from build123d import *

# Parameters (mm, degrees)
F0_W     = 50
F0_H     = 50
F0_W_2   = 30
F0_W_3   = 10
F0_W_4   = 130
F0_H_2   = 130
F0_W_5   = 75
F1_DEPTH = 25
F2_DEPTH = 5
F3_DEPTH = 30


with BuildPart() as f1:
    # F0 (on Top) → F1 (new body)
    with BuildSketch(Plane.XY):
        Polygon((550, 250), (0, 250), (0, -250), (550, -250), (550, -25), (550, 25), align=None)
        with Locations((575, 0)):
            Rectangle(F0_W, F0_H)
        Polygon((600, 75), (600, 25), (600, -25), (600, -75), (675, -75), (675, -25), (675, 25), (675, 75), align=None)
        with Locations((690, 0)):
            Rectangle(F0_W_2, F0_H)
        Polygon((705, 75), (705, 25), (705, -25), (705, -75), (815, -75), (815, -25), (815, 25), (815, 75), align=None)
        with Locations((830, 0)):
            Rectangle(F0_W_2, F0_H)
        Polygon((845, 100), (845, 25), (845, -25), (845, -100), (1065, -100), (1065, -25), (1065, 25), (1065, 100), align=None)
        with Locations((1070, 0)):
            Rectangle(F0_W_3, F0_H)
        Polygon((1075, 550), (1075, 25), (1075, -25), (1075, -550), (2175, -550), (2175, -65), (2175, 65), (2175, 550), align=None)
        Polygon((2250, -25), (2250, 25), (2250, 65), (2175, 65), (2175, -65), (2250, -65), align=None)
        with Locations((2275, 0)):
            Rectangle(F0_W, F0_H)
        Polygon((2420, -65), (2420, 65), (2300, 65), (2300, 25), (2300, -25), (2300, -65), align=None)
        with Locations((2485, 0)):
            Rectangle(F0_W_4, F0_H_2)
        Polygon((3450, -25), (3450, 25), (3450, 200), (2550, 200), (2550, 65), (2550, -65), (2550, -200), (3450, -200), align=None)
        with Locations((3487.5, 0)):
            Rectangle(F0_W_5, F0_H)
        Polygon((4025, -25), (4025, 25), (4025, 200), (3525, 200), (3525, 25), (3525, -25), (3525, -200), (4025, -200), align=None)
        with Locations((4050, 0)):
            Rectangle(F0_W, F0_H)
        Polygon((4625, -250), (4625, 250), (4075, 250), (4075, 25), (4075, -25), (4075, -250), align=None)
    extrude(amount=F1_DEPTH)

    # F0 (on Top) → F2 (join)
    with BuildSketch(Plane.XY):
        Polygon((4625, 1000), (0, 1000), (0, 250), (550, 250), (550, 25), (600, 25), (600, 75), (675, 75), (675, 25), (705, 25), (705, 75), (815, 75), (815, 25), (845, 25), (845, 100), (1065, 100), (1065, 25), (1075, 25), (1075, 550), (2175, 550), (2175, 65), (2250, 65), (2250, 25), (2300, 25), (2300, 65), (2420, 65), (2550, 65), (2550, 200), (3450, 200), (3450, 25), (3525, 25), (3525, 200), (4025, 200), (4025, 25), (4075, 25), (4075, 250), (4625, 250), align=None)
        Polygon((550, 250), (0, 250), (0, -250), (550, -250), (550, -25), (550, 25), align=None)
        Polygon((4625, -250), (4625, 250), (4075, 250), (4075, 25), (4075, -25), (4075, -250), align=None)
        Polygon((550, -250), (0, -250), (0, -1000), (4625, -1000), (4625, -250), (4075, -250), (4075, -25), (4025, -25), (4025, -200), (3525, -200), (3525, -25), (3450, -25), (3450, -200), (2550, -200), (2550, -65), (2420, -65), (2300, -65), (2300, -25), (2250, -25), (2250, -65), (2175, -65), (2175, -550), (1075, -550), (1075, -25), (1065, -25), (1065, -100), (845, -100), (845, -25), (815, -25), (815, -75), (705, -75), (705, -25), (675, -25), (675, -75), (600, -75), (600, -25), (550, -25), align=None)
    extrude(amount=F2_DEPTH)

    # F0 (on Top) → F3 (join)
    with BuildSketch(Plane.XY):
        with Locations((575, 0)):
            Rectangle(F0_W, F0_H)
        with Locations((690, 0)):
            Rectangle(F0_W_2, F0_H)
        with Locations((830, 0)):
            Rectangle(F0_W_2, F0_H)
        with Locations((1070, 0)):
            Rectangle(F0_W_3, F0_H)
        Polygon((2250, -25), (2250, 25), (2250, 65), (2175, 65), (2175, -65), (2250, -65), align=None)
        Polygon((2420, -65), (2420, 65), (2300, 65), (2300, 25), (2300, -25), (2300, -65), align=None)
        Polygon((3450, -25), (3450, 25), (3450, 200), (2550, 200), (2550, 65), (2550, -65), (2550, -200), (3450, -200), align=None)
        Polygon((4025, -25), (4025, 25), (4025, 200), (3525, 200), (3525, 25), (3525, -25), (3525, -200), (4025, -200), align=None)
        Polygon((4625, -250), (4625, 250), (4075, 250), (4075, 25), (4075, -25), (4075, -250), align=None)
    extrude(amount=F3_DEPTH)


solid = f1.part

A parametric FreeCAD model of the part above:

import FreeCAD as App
import Part
import Sketcher

V = App.Vector


def add_polygon(sketch, points):
    """Adds a closed chain of lines whose ends are joined by coincident constraints."""
    first, n = sketch.GeometryCount, len(points)
    for a, b in zip(points, points[1:] + points[:1]):
        sketch.addGeometry(Part.LineSegment(App.Vector(*a, 0), App.Vector(*b, 0)), False)
    for i in range(n):
        sketch.addConstraint(Sketcher.Constraint("Coincident", first + i, 2, first + (i + 1) % n, 1))

doc = App.newDocument("Part")
body = doc.addObject("PartDesign::Body", "Body")

# Sketch on XY plane
sketch1 = body.newObject("Sketcher::SketchObject", "Sketch")
sketch1.AttachmentSupport = (doc.getObject("XY_Plane"), [""])
sketch1.MapMode = "FlatFace"
add_polygon(sketch1, [(550, 250), (0, 250), (0, -250), (550, -250), (550, -25), (600, -25), (600, -75), (675, -75), (675, -25), (705, -25), (705, -75), (815, -75), (815, -25), (845, -25), (845, -100), (1065, -100), (1065, -25), (1075, -25), (1075, -550), (2175, -550), (2175, -65), (2250, -65), (2250, -25), (2300, -25), (2300, -65), (2550, -65), (2550, -200), (3450, -200), (3450, -25), (3525, -25), (3525, -200), (4025, -200), (4025, -25), (4075, -25), (4075, -250), (4625, -250), (4625, 250), (4075, 250), (4075, 25), (4025, 25), (4025, 200), (3525, 200), (3525, 25), (3450, 25), (3450, 200), (2550, 200), (2550, 65), (2300, 65), (2300, 25), (2250, 25), (2250, 65), (2175, 65), (2175, 550), (1075, 550), (1075, 25), (1065, 25), (1065, 100), (845, 100), (845, 25), (815, 25), (815, 75), (705, 75), (705, 25), (675, 25), (675, 75), (600, 75), (600, 25), (550, 25)])  # lines 0-67
sketch1.addConstraint([
    Sketcher.Constraint("Horizontal", 0),
    Sketcher.Constraint("Vertical", 1),
    Sketcher.Constraint("Horizontal", 2),
    Sketcher.Constraint("Vertical", 3),
    Sketcher.Constraint("Horizontal", 4),
    Sketcher.Constraint("Vertical", 5),
    Sketcher.Constraint("Horizontal", 6),
    Sketcher.Constraint("Vertical", 7),
    Sketcher.Constraint("Horizontal", 8),
    Sketcher.Constraint("Vertical", 9),
    Sketcher.Constraint("Horizontal", 10),
    Sketcher.Constraint("Vertical", 11),
    Sketcher.Constraint("Horizontal", 12),
    Sketcher.Constraint("Vertical", 13),
    Sketcher.Constraint("Horizontal", 14),
    Sketcher.Constraint("Vertical", 15),
    Sketcher.Constraint("Horizontal", 16),
    Sketcher.Constraint("Vertical", 17),
    Sketcher.Constraint("Horizontal", 18),
    Sketcher.Constraint("Vertical", 19),
    Sketcher.Constraint("Horizontal", 20),
    Sketcher.Constraint("Vertical", 21),
    Sketcher.Constraint("Horizontal", 22),
    Sketcher.Constraint("Vertical", 23),
    Sketcher.Constraint("Horizontal", 24),
    Sketcher.Constraint("Vertical", 25),
    Sketcher.Constraint("Horizontal", 26),
    Sketcher.Constraint("Vertical", 27),
    Sketcher.Constraint("Horizontal", 28),
    Sketcher.Constraint("Vertical", 29),
    Sketcher.Constraint("Horizontal", 30),
    Sketcher.Constraint("Vertical", 31),
    Sketcher.Constraint("Horizontal", 32),
    Sketcher.Constraint("Vertical", 33),
    Sketcher.Constraint("Horizontal", 34),
    Sketcher.Constraint("Vertical", 35),
    Sketcher.Constraint("Horizontal", 36),
    Sketcher.Constraint("Vertical", 37),
    Sketcher.Constraint("Horizontal", 38),
    Sketcher.Constraint("Vertical", 39),
    Sketcher.Constraint("Horizontal", 40),
    Sketcher.Constraint("Vertical", 41),
    Sketcher.Constraint("Horizontal", 42),
    Sketcher.Constraint("Vertical", 43),
    Sketcher.Constraint("Horizontal", 44),
    Sketcher.Constraint("Vertical", 45),
    Sketcher.Constraint("Horizontal", 46),
    Sketcher.Constraint("Vertical", 47),
    Sketcher.Constraint("Horizontal", 48),
    Sketcher.Constraint("Vertical", 49),
    Sketcher.Constraint("Horizontal", 50),
    Sketcher.Constraint("Vertical", 51),
    Sketcher.Constraint("Horizontal", 52),
    Sketcher.Constraint("Vertical", 53),
    Sketcher.Constraint("Horizontal", 54),
    Sketcher.Constraint("Vertical", 55),
    Sketcher.Constraint("Horizontal", 56),
    Sketcher.Constraint("Vertical", 57),
    Sketcher.Constraint("Horizontal", 58),
    Sketcher.Constraint("Vertical", 59),
    Sketcher.Constraint("Horizontal", 60),
    Sketcher.Constraint("Vertical", 61),
    Sketcher.Constraint("Horizontal", 62),
    Sketcher.Constraint("Vertical", 63),
    Sketcher.Constraint("Horizontal", 64),
    Sketcher.Constraint("Vertical", 65),
    Sketcher.Constraint("Horizontal", 66),
    Sketcher.Constraint("Vertical", 67),
    Sketcher.Constraint("Symmetric", 0, 2, 1, 2, -1, 1),
    Sketcher.Constraint("Symmetric", 33, 2, 36, 2, -1),
    Sketcher.Constraint("Symmetric", 31, 2, 38, 2, -1),
    Sketcher.Constraint("Symmetric", 29, 2, 40, 2, -1),
    Sketcher.Constraint("Symmetric", 27, 2, 42, 2, -1),
    Sketcher.Constraint("Symmetric", 25, 2, 44, 2, -1),
    Sketcher.Constraint("Symmetric", 23, 2, 46, 2, -1),
    Sketcher.Constraint("Symmetric", 21, 2, 48, 2, -1),
    Sketcher.Constraint("Symmetric", 19, 2, 50, 2, -1),
    Sketcher.Constraint("Symmetric", 17, 2, 52, 2, -1),
    Sketcher.Constraint("Symmetric", 15, 2, 54, 2, -1),
    Sketcher.Constraint("Symmetric", 13, 2, 56, 2, -1),
    Sketcher.Constraint("Symmetric", 11, 2, 58, 2, -1),
    Sketcher.Constraint("Symmetric", 9, 2, 60, 2, -1),
    Sketcher.Constraint("Symmetric", 7, 2, 62, 2, -1),
    Sketcher.Constraint("Symmetric", 5, 2, 64, 2, -1),
    Sketcher.Constraint("Symmetric", 3, 2, 66, 2, -1),
    Sketcher.Constraint("Horizontal", 4, 2, 7, 2),
    Sketcher.Constraint("Horizontal", 6, 2, 9, 2),
    Sketcher.Constraint("Horizontal", 8, 2, 11, 2),
    Sketcher.Constraint("Horizontal", 12, 2, 15, 2),
    Sketcher.Constraint("Horizontal", 16, 2, 21, 2),
    Sketcher.Constraint("Horizontal", 20, 2, 23, 2),
    Sketcher.Constraint("Horizontal", 22, 2, 27, 2),
    Sketcher.Constraint("Horizontal", 26, 2, 29, 2),
    Sketcher.Constraint("Horizontal", 28, 2, 31, 2),
    Sketcher.Constraint("Horizontal", 2, 2, 33, 2),
    Sketcher.Constraint("Equal", 8, 12),
    Sketcher.Constraint("Equal", 6, 20),
    Sketcher.Constraint("Equal", 4, 22),
    Sketcher.Constraint("Equal", 20, 28),
    Sketcher.Constraint("Equal", 22, 32),
    Sketcher.Constraint("Equal", 2, 34),
    Sketcher.Constraint("Equal", 40, 1),
    Sketcher.Constraint("Equal", 66, 5),
    Sketcher.Constraint("Equal", 64, 13),
    Sketcher.Constraint("DistanceX", 0, 2, 0, 1, 550.0),
    Sketcher.Constraint("DistanceX", 4, 1, 4, 2, 50.0),
    Sketcher.Constraint("DistanceX", 6, 1, 6, 2, 75.0),
    Sketcher.Constraint("DistanceX", 8, 1, 8, 2, 30.0),
    Sketcher.Constraint("DistanceX", 10, 1, 10, 2, 110.0),
    Sketcher.Constraint("DistanceX", 14, 1, 14, 2, 220.0),
    Sketcher.Constraint("DistanceX", 16, 1, 16, 2, 10.0),
    Sketcher.Constraint("DistanceX", 18, 1, 18, 2, 1100.0),
    Sketcher.Constraint("DistanceX", 24, 1, 24, 2, 250.0),
    Sketcher.Constraint("DistanceX", 26, 1, 26, 2, 900.0),
    Sketcher.Constraint("DistanceX", 30, 1, 30, 2, 500.0),
    Sketcher.Constraint("DistanceY", 3, 1, 3, 2, 225.0),
    Sketcher.Constraint("DistanceY", 17, 2, 17, 1, 525.0),
    Sketcher.Constraint("DistanceY", 19, 1, 19, 2, 485.0),
    Sketcher.Constraint("DistanceY", 25, 2, 25, 1, 135.0),
])
pad1 = body.newObject("PartDesign::Pad", "Pad")
pad1.Profile = sketch1
pad1.Length = 25

# Sketch on XY plane
sketch2 = body.newObject("Sketcher::SketchObject", "Sketch001")
sketch2.AttachmentSupport = (doc.getObject("XY_Plane"), [""])
sketch2.MapMode = "FlatFace"
add_polygon(sketch2, [(4625, 1000), (0, 1000), (0, -1000), (4625, -1000)])  # lines 0-3
add_polygon(sketch2, [(550, -25), (550, 25), (600, 25), (600, 75), (675, 75), (675, 25), (705, 25), (705, 75), (815, 75), (815, 25), (845, 25), (845, 100), (1065, 100), (1065, 25), (1075, 25), (1075, 550), (2175, 550), (2175, 65), (2250, 65), (2250, 25), (2300, 25), (2300, 65), (2550, 65), (2550, 200), (3450, 200), (3450, 25), (3525, 25), (3525, 200), (4025, 200), (4025, 25), (4075, 25), (4075, -25), (4025, -25), (4025, -200), (3525, -200), (3525, -25), (3450, -25), (3450, -200), (2550, -200), (2550, -65), (2300, -65), (2300, -25), (2250, -25), (2250, -65), (2175, -65), (2175, -550), (1075, -550), (1075, -25), (1065, -25), (1065, -100), (845, -100), (845, -25), (815, -25), (815, -75), (705, -75), (705, -25), (675, -25), (675, -75), (600, -75), (600, -25)])  # lines 4-63
sketch2.addConstraint([
    Sketcher.Constraint("Horizontal", 0),
    Sketcher.Constraint("Vertical", 1),
    Sketcher.Constraint("Horizontal", 2),
    Sketcher.Constraint("Vertical", 3),
    Sketcher.Constraint("Vertical", 4),
    Sketcher.Constraint("Horizontal", 5),
    Sketcher.Constraint("Vertical", 6),
    Sketcher.Constraint("Horizontal", 7),
    Sketcher.Constraint("Vertical", 8),
    Sketcher.Constraint("Horizontal", 9),
    Sketcher.Constraint("Vertical", 10),
    Sketcher.Constraint("Horizontal", 11),
    Sketcher.Constraint("Vertical", 12),
    Sketcher.Constraint("Horizontal", 13),
    Sketcher.Constraint("Vertical", 14),
    Sketcher.Constraint("Horizontal", 15),
    Sketcher.Constraint("Vertical", 16),
    Sketcher.Constraint("Horizontal", 17),
    Sketcher.Constraint("Vertical", 18),
    Sketcher.Constraint("Horizontal", 19),
    Sketcher.Constraint("Vertical", 20),
    Sketcher.Constraint("Horizontal", 21),
    Sketcher.Constraint("Vertical", 22),
    Sketcher.Constraint("Horizontal", 23),
    Sketcher.Constraint("Vertical", 24),
    Sketcher.Constraint("Horizontal", 25),
    Sketcher.Constraint("Vertical", 26),
    Sketcher.Constraint("Horizontal", 27),
    Sketcher.Constraint("Vertical", 28),
    Sketcher.Constraint("Horizontal", 29),
    Sketcher.Constraint("Vertical", 30),
    Sketcher.Constraint("Horizontal", 31),
    Sketcher.Constraint("Vertical", 32),
    Sketcher.Constraint("Horizontal", 33),
    Sketcher.Constraint("Vertical", 34),
    Sketcher.Constraint("Horizontal", 35),
    Sketcher.Constraint("Vertical", 36),
    Sketcher.Constraint("Horizontal", 37),
    Sketcher.Constraint("Vertical", 38),
    Sketcher.Constraint("Horizontal", 39),
    Sketcher.Constraint("Vertical", 40),
    Sketcher.Constraint("Horizontal", 41),
    Sketcher.Constraint("Vertical", 42),
    Sketcher.Constraint("Horizontal", 43),
    Sketcher.Constraint("Vertical", 44),
    Sketcher.Constraint("Horizontal", 45),
    Sketcher.Constraint("Vertical", 46),
    Sketcher.Constraint("Horizontal", 47),
    Sketcher.Constraint("Vertical", 48),
    Sketcher.Constraint("Horizontal", 49),
    Sketcher.Constraint("Vertical", 50),
    Sketcher.Constraint("Horizontal", 51),
    Sketcher.Constraint("Vertical", 52),
    Sketcher.Constraint("Horizontal", 53),
    Sketcher.Constraint("Vertical", 54),
    Sketcher.Constraint("Horizontal", 55),
    Sketcher.Constraint("Vertical", 56),
    Sketcher.Constraint("Horizontal", 57),
    Sketcher.Constraint("Vertical", 58),
    Sketcher.Constraint("Horizontal", 59),
    Sketcher.Constraint("Vertical", 60),
    Sketcher.Constraint("Horizontal", 61),
    Sketcher.Constraint("Vertical", 62),
    Sketcher.Constraint("Horizontal", 63),
    Sketcher.Constraint("Symmetric", 0, 2, 1, 2, -1, 1),
    Sketcher.Constraint("Symmetric", 32, 2, 35, 2, -1),
    Sketcher.Constraint("Symmetric", 30, 2, 37, 2, -1),
    Sketcher.Constraint("Symmetric", 28, 2, 39, 2, -1),
    Sketcher.Constraint("Symmetric", 26, 2, 41, 2, -1),
    Sketcher.Constraint("Symmetric", 24, 2, 43, 2, -1),
    Sketcher.Constraint("Symmetric", 22, 2, 45, 2, -1),
    Sketcher.Constraint("Symmetric", 20, 2, 47, 2, -1),
    Sketcher.Constraint("Symmetric", 18, 2, 49, 2, -1),
    Sketcher.Constraint("Symmetric", 16, 2, 51, 2, -1),
    Sketcher.Constraint("Symmetric", 14, 2, 53, 2, -1),
    Sketcher.Constraint("Symmetric", 12, 2, 55, 2, -1),
    Sketcher.Constraint("Symmetric", 10, 2, 57, 2, -1),
    Sketcher.Constraint("Symmetric", 8, 2, 59, 2, -1),
    Sketcher.Constraint("Symmetric", 6, 2, 61, 2, -1),
    Sketcher.Constraint("Horizontal", 5, 2, 8, 2),
    Sketcher.Constraint("Horizontal", 7, 2, 10, 2),
    Sketcher.Constraint("Horizontal", 9, 2, 12, 2),
    Sketcher.Constraint("Horizontal", 13, 2, 16, 2),
    Sketcher.Constraint("Horizontal", 17, 2, 22, 2),
    Sketcher.Constraint("Horizontal", 21, 2, 24, 2),
    Sketcher.Constraint("Horizontal", 23, 2, 28, 2),
    Sketcher.Constraint("Horizontal", 27, 2, 30, 2),
    Sketcher.Constraint("Horizontal", 29, 2, 32, 2),
    Sketcher.Constraint("Horizontal", 59, 2, 62, 2),
    Sketcher.Constraint("Equal", 9, 13),
    Sketcher.Constraint("Equal", 7, 21),
    Sketcher.Constraint("Equal", 5, 23),
    Sketcher.Constraint("Equal", 21, 29),
    Sketcher.Constraint("Equal", 23, 33),
    Sketcher.Constraint("Equal", 63, 4),
    Sketcher.Constraint("Equal", 4, 6),
    Sketcher.Constraint("Equal", 61, 14),
    Sketcher.Constraint("DistanceX", 0, 2, 0, 1, 4625.0),
    Sketcher.Constraint("DistanceX", 5, 1, 5, 2, 50.0),
    Sketcher.Constraint("DistanceX", 7, 1, 7, 2, 75.0),
    Sketcher.Constraint("DistanceX", 9, 1, 9, 2, 30.0),
    Sketcher.Constraint("DistanceX", 11, 1, 11, 2, 110.0),
    Sketcher.Constraint("DistanceX", 15, 1, 15, 2, 220.0),
    Sketcher.Constraint("DistanceX", 17, 1, 17, 2, 10.0),
    Sketcher.Constraint("DistanceX", 19, 1, 19, 2, 1100.0),
    Sketcher.Constraint("DistanceX", 25, 1, 25, 2, 250.0),
    Sketcher.Constraint("DistanceX", 27, 1, 27, 2, 900.0),
    Sketcher.Constraint("DistanceX", 31, 1, 31, 2, 500.0),
    Sketcher.Constraint("DistanceY", 1, 2, 1, 1, 2000.0),
    Sketcher.Constraint("DistanceY", 18, 1, 18, 2, 525.0),
    Sketcher.Constraint("DistanceY", 20, 2, 20, 1, 485.0),
    Sketcher.Constraint("DistanceY", 26, 1, 26, 2, 135.0),
    Sketcher.Constraint("DistanceX", -1, 1, 4, 2, 550.0),
])
pad2 = body.newObject("PartDesign::Pad", "Pad001")
pad2.Profile = sketch2
pad2.Length = 5

# Sketch on XY plane
sketch3 = body.newObject("Sketcher::SketchObject", "Sketch002")
sketch3.AttachmentSupport = (doc.getObject("XY_Plane"), [""])
sketch3.MapMode = "FlatFace"
add_polygon(sketch3, [(550, 25), (550, -25), (600, -25), (600, 25)])  # lines 0-3
add_polygon(sketch3, [(675, 25), (675, -25), (705, -25), (705, 25)])  # lines 4-7
add_polygon(sketch3, [(815, 25), (815, -25), (845, -25), (845, 25)])  # lines 8-11
add_polygon(sketch3, [(1065, 25), (1065, -25), (1075, -25), (1075, 25)])  # lines 12-15
add_polygon(sketch3, [(2250, 65), (2175, 65), (2175, -65), (2250, -65)])  # lines 16-19
add_polygon(sketch3, [(2420, -65), (2420, 65), (2300, 65), (2300, -65)])  # lines 20-23
add_polygon(sketch3, [(3450, 200), (2550, 200), (2550, -200), (3450, -200)])  # lines 24-27
add_polygon(sketch3, [(4025, 200), (3525, 200), (3525, -200), (4025, -200)])  # lines 28-31
add_polygon(sketch3, [(4625, -250), (4625, 250), (4075, 250), (4075, -250)])  # lines 32-35
sketch3.addConstraint([
    Sketcher.Constraint("Vertical", 0),
    Sketcher.Constraint("Horizontal", 1),
    Sketcher.Constraint("Vertical", 2),
    Sketcher.Constraint("Horizontal", 3),
    Sketcher.Constraint("Vertical", 4),
    Sketcher.Constraint("Horizontal", 5),
    Sketcher.Constraint("Vertical", 6),
    Sketcher.Constraint("Horizontal", 7),
    Sketcher.Constraint("Vertical", 8),
    Sketcher.Constraint("Horizontal", 9),
    Sketcher.Constraint("Vertical", 10),
    Sketcher.Constraint("Horizontal", 11),
    Sketcher.Constraint("Vertical", 12),
    Sketcher.Constraint("Horizontal", 13),
    Sketcher.Constraint("Vertical", 14),
    Sketcher.Constraint("Horizontal", 15),
    Sketcher.Constraint("Horizontal", 16),
    Sketcher.Constraint("Vertical", 17),
    Sketcher.Constraint("Horizontal", 18),
    Sketcher.Constraint("Vertical", 19),
    Sketcher.Constraint("Vertical", 20),
    Sketcher.Constraint("Horizontal", 21),
    Sketcher.Constraint("Vertical", 22),
    Sketcher.Constraint("Horizontal", 23),
    Sketcher.Constraint("Horizontal", 24),
    Sketcher.Constraint("Vertical", 25),
    Sketcher.Constraint("Horizontal", 26),
    Sketcher.Constraint("Vertical", 27),
    Sketcher.Constraint("Horizontal", 28),
    Sketcher.Constraint("Vertical", 29),
    Sketcher.Constraint("Horizontal", 30),
    Sketcher.Constraint("Vertical", 31),
    Sketcher.Constraint("Vertical", 32),
    Sketcher.Constraint("Horizontal", 33),
    Sketcher.Constraint("Vertical", 34),
    Sketcher.Constraint("Horizontal", 35),
    Sketcher.Constraint("Horizontal", 1, 2, 4, 2),
    Sketcher.Constraint("Horizontal", 3, 2, 6, 2),
    Sketcher.Constraint("Horizontal", 5, 2, 8, 2),
    Sketcher.Constraint("Horizontal", 7, 2, 10, 2),
    Sketcher.Constraint("Horizontal", 9, 2, 12, 2),
    Sketcher.Constraint("Horizontal", 11, 2, 14, 2),
    Sketcher.Constraint("Horizontal", 19, 2, 20, 2),
    Sketcher.Constraint("Horizontal", 18, 2, 22, 2),
    Sketcher.Constraint("Horizontal", 27, 2, 28, 2),
    Sketcher.Constraint("Horizontal", 26, 2, 29, 2),
    Sketcher.Constraint("Equal", 7, 9),
    Sketcher.Constraint("Equal", 3, 0),
    Sketcher.Constraint("Equal", 30, 32),
    Sketcher.Constraint("DistanceX", 1, 1, 1, 2, 50.0),
    Sketcher.Constraint("DistanceX", 5, 1, 5, 2, 30.0),
    Sketcher.Constraint("DistanceX", 13, 1, 13, 2, 10.0),
    Sketcher.Constraint("DistanceX", 16, 2, 16, 1, 75.0),
    Sketcher.Constraint("DistanceX", 21, 2, 21, 1, 120.0),
    Sketcher.Constraint("DistanceX", 24, 2, 24, 1, 900.0),
    Sketcher.Constraint("DistanceX", 28, 2, 28, 1, 500.0),
    Sketcher.Constraint("DistanceX", 33, 2, 33, 1, 550.0),
    Sketcher.Constraint("DistanceY", 17, 2, 17, 1, 130.0),
    Sketcher.Constraint("DistanceY", 25, 2, 25, 1, 400.0),
    Sketcher.Constraint("DistanceX", -1, 1, 0, 2, 550.0),
    Sketcher.Constraint("DistanceY", 0, 2, -1, 1, 25.0),
    Sketcher.Constraint("DistanceX", -1, 1, 4, 2, 675.0),
    Sketcher.Constraint("DistanceX", -1, 1, 8, 2, 815.0),
    Sketcher.Constraint("DistanceX", -1, 1, 12, 2, 1065.0),
    Sketcher.Constraint("DistanceX", -1, 1, 16, 2, 2175.0),
    Sketcher.Constraint("DistanceY", -1, 1, 16, 2, 65.0),
    Sketcher.Constraint("DistanceX", -1, 1, 20, 2, 2420.0),
    Sketcher.Constraint("DistanceX", -1, 1, 24, 2, 2550.0),
    Sketcher.Constraint("DistanceY", -1, 1, 24, 2, 200.0),
    Sketcher.Constraint("DistanceX", -1, 1, 28, 2, 3525.0),
    Sketcher.Constraint("DistanceX", -1, 1, 32, 2, 4625.0),
    Sketcher.Constraint("DistanceY", -1, 1, 32, 2, 250.0),
])
pad3 = body.newObject("PartDesign::Pad", "Pad002")
pad3.Profile = sketch3
pad3.Length = 30

doc.recompute()
